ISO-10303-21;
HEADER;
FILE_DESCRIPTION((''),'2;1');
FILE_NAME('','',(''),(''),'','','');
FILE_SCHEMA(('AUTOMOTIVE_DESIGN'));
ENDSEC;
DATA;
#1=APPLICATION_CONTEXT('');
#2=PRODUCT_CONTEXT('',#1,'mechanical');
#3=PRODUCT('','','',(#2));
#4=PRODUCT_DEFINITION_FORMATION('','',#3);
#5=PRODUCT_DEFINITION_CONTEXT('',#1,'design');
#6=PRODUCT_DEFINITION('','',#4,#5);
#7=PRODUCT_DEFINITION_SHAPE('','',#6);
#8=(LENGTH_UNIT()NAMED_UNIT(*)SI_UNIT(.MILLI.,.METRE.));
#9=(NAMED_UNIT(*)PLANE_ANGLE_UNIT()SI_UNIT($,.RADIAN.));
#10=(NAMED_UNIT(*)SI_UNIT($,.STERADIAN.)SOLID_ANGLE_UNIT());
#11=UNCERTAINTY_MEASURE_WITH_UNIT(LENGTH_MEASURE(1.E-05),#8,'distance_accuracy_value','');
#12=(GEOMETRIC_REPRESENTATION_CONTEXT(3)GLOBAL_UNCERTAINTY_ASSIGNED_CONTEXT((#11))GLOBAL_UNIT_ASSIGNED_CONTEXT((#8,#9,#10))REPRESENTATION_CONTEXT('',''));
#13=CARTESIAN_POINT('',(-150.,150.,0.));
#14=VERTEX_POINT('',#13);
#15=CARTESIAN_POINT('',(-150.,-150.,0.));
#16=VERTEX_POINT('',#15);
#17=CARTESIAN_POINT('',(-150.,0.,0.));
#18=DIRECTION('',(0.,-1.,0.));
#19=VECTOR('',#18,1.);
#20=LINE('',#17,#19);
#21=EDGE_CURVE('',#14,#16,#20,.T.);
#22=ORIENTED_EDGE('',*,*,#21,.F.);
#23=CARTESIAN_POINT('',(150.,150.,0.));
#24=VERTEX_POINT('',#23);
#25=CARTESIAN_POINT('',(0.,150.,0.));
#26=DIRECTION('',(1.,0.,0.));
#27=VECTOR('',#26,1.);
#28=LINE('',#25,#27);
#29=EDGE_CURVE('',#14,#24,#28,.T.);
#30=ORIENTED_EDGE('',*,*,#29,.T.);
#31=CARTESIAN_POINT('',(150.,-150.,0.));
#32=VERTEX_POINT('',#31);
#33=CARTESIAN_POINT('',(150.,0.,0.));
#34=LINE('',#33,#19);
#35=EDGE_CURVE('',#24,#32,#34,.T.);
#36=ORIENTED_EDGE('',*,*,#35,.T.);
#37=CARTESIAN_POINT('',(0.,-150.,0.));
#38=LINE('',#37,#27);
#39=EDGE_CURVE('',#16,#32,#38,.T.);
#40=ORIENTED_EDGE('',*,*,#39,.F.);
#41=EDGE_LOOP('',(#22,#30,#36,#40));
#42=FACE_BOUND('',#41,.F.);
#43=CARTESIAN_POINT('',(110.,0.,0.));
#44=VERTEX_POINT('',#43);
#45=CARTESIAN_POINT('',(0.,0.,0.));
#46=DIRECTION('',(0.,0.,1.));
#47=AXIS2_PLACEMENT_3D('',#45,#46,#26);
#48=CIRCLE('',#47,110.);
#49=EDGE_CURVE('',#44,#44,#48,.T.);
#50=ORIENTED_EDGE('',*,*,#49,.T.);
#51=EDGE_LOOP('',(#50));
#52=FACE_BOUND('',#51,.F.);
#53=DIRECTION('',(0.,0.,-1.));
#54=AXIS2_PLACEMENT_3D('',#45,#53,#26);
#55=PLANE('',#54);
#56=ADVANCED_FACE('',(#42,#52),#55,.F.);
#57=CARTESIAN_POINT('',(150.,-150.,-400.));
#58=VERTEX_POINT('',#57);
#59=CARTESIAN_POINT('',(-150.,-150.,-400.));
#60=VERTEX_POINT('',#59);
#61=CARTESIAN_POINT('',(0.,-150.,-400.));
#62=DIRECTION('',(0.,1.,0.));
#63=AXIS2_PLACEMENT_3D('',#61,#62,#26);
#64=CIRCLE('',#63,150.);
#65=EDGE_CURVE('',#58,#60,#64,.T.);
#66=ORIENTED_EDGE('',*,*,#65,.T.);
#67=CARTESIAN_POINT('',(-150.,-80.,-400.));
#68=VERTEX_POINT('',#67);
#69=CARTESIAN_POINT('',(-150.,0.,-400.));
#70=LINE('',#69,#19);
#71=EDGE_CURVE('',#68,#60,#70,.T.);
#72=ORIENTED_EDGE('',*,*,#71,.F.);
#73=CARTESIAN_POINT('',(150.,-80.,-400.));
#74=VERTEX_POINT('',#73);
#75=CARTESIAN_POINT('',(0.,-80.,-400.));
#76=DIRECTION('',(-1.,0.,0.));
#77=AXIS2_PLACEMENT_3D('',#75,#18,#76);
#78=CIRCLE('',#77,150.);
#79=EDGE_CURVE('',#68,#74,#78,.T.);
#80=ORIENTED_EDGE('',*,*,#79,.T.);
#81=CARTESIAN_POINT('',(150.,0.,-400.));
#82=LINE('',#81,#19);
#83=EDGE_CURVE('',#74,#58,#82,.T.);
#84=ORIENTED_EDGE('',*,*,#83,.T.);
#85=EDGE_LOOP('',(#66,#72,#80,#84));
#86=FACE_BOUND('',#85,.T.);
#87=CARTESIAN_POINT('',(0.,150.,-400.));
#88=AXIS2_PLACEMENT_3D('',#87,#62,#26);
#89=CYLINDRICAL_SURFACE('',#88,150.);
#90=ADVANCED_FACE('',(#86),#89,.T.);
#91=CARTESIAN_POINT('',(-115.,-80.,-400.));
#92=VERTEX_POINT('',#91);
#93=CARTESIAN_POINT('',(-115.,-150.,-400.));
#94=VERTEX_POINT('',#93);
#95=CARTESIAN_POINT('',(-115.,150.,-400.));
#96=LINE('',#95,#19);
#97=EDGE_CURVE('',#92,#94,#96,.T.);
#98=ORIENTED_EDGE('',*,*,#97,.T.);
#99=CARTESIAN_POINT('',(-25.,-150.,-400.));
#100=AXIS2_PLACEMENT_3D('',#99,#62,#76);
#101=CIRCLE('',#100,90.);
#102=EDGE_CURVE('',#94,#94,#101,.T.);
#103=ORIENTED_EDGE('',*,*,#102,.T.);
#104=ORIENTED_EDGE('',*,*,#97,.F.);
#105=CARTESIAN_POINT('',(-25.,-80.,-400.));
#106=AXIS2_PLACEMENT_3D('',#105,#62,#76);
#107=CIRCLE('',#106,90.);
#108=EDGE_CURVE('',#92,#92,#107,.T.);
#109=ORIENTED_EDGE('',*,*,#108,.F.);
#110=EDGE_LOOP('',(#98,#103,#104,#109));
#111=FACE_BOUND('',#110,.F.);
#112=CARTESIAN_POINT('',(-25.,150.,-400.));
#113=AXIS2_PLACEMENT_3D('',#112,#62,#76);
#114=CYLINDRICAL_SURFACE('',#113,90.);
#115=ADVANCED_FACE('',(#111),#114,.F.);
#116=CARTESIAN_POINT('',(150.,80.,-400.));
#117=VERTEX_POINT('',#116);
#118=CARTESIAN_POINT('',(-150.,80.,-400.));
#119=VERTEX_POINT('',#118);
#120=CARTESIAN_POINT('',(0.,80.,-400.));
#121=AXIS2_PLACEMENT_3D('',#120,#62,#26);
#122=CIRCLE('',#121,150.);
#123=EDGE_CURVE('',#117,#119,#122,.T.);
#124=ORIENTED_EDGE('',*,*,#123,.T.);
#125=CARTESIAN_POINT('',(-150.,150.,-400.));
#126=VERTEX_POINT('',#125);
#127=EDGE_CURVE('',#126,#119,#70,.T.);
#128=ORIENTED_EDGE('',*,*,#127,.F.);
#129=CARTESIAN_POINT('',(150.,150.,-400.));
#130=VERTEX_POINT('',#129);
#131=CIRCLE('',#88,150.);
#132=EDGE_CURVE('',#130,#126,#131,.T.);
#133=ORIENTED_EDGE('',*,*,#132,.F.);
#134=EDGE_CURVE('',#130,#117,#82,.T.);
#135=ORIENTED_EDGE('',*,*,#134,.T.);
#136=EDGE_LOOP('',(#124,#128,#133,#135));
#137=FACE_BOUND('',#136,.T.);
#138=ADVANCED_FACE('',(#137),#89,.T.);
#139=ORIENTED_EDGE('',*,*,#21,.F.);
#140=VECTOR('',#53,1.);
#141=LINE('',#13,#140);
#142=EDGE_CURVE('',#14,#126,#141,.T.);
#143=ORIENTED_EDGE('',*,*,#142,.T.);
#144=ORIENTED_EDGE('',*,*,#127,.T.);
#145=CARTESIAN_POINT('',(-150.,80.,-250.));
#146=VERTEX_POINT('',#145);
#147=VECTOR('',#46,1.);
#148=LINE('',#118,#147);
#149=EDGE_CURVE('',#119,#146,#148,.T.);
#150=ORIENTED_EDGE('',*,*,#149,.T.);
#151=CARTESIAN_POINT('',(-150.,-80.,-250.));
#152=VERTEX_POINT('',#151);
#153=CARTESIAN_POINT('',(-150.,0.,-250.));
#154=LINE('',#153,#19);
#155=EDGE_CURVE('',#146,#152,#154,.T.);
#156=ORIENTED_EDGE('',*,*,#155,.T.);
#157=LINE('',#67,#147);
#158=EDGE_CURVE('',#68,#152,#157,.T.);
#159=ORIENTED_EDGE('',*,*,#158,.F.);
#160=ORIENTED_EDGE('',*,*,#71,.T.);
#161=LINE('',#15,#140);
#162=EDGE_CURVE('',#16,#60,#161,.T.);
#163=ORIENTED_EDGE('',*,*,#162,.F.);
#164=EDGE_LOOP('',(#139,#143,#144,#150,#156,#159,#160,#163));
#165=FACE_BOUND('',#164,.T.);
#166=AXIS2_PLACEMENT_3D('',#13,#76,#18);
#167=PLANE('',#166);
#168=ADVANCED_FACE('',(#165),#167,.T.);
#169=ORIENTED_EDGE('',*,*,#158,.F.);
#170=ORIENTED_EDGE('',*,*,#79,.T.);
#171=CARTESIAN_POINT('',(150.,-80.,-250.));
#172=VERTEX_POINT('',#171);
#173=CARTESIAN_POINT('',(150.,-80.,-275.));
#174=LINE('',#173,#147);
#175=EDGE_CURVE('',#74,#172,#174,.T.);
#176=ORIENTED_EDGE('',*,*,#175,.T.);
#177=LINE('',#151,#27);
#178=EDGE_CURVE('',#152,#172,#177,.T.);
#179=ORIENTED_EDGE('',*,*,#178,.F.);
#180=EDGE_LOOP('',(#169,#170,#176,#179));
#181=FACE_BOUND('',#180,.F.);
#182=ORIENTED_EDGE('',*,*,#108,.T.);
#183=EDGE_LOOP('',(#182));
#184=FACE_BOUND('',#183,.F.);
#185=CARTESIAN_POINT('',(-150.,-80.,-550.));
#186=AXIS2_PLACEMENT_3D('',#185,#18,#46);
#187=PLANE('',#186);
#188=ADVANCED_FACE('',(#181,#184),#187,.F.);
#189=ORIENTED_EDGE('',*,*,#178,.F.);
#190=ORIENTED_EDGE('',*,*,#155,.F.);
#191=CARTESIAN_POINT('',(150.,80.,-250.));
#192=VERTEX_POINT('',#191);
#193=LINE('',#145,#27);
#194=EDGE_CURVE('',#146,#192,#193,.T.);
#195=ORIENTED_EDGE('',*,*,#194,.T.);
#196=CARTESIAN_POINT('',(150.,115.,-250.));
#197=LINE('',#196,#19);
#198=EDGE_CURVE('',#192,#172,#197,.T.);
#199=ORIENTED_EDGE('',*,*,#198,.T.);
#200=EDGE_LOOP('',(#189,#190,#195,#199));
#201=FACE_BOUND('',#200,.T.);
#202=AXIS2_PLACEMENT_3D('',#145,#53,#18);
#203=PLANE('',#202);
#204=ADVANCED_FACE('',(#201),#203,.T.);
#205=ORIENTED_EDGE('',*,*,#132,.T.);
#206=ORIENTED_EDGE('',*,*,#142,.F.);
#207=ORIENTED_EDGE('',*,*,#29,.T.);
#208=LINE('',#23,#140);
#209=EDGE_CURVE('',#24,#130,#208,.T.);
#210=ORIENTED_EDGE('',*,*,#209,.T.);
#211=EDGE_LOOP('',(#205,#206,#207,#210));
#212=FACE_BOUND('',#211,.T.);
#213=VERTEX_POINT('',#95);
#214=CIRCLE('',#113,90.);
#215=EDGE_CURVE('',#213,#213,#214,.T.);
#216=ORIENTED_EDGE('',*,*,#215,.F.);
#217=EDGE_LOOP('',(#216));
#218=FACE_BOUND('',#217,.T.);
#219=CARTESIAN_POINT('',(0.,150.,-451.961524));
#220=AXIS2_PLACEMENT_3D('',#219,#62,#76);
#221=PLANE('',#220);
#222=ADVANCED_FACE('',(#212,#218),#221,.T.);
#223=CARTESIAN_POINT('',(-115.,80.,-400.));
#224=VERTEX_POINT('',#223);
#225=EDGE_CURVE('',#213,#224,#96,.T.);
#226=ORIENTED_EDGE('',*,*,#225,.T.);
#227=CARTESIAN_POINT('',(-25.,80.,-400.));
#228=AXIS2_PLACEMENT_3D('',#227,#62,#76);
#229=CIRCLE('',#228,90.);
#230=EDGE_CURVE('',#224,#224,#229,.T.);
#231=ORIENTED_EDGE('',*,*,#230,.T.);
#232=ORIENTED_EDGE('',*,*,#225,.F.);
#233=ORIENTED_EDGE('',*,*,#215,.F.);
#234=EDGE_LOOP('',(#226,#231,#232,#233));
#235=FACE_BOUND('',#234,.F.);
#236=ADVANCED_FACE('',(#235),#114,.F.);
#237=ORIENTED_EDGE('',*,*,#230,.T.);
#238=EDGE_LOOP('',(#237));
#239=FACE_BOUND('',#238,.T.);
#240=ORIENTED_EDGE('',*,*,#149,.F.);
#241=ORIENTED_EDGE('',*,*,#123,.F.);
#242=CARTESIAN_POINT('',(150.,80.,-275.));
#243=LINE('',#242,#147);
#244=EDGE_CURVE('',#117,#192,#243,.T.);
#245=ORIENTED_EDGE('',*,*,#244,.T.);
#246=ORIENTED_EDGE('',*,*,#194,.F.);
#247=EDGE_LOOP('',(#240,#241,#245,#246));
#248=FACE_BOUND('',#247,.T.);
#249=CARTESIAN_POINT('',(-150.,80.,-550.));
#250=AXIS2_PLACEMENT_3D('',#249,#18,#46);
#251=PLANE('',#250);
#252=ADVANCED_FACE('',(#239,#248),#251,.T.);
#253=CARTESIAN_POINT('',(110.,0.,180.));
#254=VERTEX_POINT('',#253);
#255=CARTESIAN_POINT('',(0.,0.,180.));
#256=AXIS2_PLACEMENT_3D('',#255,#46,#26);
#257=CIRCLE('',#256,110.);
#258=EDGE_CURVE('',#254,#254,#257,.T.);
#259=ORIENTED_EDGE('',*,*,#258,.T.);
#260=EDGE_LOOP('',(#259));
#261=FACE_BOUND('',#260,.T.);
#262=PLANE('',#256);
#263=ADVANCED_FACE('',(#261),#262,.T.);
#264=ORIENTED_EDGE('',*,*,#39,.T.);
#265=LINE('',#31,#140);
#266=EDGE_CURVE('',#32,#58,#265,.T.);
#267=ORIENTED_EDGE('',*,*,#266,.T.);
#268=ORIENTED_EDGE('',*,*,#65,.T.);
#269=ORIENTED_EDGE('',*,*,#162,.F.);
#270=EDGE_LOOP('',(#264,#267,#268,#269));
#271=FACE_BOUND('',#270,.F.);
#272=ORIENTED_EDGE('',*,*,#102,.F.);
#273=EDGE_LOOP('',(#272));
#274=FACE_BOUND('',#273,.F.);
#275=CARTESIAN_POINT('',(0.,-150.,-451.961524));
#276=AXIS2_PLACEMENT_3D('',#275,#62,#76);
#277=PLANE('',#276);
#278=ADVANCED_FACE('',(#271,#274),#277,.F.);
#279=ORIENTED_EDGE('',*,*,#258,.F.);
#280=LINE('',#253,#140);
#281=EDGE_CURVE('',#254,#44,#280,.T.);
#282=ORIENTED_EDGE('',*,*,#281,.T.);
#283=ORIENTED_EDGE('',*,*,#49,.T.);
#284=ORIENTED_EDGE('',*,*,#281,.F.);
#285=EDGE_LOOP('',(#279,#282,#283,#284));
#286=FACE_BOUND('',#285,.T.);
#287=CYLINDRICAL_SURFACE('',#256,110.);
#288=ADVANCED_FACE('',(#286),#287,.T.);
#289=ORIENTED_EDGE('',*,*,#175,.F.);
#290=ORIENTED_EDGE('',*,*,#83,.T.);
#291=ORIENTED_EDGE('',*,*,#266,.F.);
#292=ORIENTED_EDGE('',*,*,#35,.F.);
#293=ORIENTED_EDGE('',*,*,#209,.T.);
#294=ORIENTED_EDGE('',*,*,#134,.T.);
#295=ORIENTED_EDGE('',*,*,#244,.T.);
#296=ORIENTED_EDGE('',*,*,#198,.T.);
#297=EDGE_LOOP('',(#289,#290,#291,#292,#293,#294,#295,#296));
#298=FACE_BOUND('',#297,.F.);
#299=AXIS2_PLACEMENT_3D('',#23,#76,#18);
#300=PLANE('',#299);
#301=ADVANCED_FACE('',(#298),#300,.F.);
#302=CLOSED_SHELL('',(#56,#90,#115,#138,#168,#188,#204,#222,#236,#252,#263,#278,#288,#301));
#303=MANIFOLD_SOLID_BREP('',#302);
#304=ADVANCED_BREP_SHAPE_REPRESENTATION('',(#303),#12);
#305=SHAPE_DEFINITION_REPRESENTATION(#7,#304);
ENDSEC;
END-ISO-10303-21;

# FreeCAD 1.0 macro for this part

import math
import FreeCAD as App
import Part
import Sketcher

V = App.Vector

doc = App.newDocument("Part")
body = doc.addObject("PartDesign::Body", "Body")

# Sketch on XY plane
sketch1 = body.newObject("Sketcher::SketchObject", "Sketch")
sketch1.AttachmentSupport = (doc.getObject("XY_Plane"), [""])
sketch1.MapMode = "FlatFace"
sketch1.addGeometry(Part.Circle(V(0, 0, 0), V(0, 0, 1), 90), False)
sketch1.addConstraint([
    Sketcher.Constraint("Coincident", 0, 3, -1, 1),
    Sketcher.Constraint("Diameter", 0, 180.0),
])
pad1 = body.newObject("PartDesign::Pad", "Pad")
pad1.Profile = sketch1
pad1.Length = 180

# Sketch on XY plane
sketch2 = body.newObject("Sketcher::SketchObject", "Sketch001")
sketch2.AttachmentSupport = (doc.getObject("XY_Plane"), [""])
sketch2.MapMode = "FlatFace"
sketch2.addGeometry([
    Part.LineSegment(V(-150, -150, 0), V(-150, 150, 0)),
    Part.LineSegment(V(-150, 150, 0), V(150, 150, 0)),
    Part.LineSegment(V(150, 150, 0), V(150, -150, 0)),
    Part.LineSegment(V(150, -150, 0), V(-150, -150, 0)),
], False)
sketch2.addConstraint([
    Sketcher.Constraint("Coincident", 0, 2, 1, 1),
    Sketcher.Constraint("Coincident", 1, 2, 2, 1),
    Sketcher.Constraint("Coincident", 2, 2, 3, 1),
    Sketcher.Constraint("Coincident", 3, 2, 0, 1),
    Sketcher.Constraint("Vertical", 0),
    Sketcher.Constraint("Horizontal", 1),
    Sketcher.Constraint("Vertical", 2),
    Sketcher.Constraint("Horizontal", 3),
    Sketcher.Constraint("Symmetric", 0, 2, 2, 2, -1, 1),
    Sketcher.Constraint("Equal", 3, 0),
    Sketcher.Constraint("DistanceX", 1, 1, 1, 2, 300.0),
])
pad2 = body.newObject("PartDesign::Pad", "Pad001")
pad2.Profile = sketch2
pad2.Length = 400
pad2.Reversed = True

# Sketch on XZ plane
sketch3 = body.newObject("Sketcher::SketchObject", "Sketch002")
sketch3.AttachmentSupport = (doc.getObject("XZ_Plane"), [""])
sketch3.MapMode = "FlatFace"
sketch3.AttachmentOffset = App.Placement(V(0, 0, -150), App.Rotation())
sketch3.addGeometry([
    Part.LineSegment(V(-150, -400, 0), V(150, -400, 0)),
    Part.ArcOfCircle(Part.Circle(V(0, -400, 0), V(0, 0, 1), 150), math.radians(180), math.radians(360)),
], False)
sketch3.addConstraint([
    Sketcher.Constraint("Coincident", 0, 1, 1, 1),
    Sketcher.Constraint("Coincident", 1, 2, 0, 2),
    Sketcher.Constraint("Horizontal", 0),
    Sketcher.Constraint("PointOnObject", 1, 3, -2),
    Sketcher.Constraint("Horizontal", 1, 3, 0, 1),
    Sketcher.Constraint("Radius", 1, 150.0),
    Sketcher.Constraint("DistanceY", 1, 3, -1, 1, 400.0),
])
pad3 = body.newObject("PartDesign::Pad", "Pad002")
pad3.Profile = sketch3
pad3.Length = 300

# Sketch on XZ plane
sketch4 = body.newObject("Sketcher::SketchObject", "Sketch003")
sketch4.AttachmentSupport = (doc.getObject("XZ_Plane"), [""])
sketch4.MapMode = "FlatFace"
sketch4.AttachmentOffset = App.Placement(V(0, 0, -150), App.Rotation())
sketch4.addGeometry(Part.Circle(V(-25, -400, 0), V(0, 0, 1), 90), False)
sketch4.addConstraint([
    Sketcher.Constraint("Diameter", 0, 180.0),
    Sketcher.Constraint("DistanceX", 0, 3, -1, 1, 25.0),
    Sketcher.Constraint("DistanceY", 0, 3, -1, 1, 400.0),
])
pocket1 = body.newObject("PartDesign::Pocket", "Pocket")
pocket1.Profile = sketch4
pocket1.Length = 300
pocket1.Reversed = True

# Sketch on YZ plane
sketch5 = body.newObject("Sketcher::SketchObject", "Sketch004")
sketch5.AttachmentSupport = (doc.getObject("YZ_Plane"), [""])
sketch5.MapMode = "FlatFace"
sketch5.AttachmentOffset = App.Placement(V(0, 0, -150), App.Rotation())
sketch5.addGeometry([
    Part.LineSegment(V(80, -250, 0), V(80, -550, 0)),
    Part.LineSegment(V(80, -550, 0), V(-80, -550, 0)),
    Part.LineSegment(V(-80, -550, 0), V(-80, -250, 0)),
    Part.LineSegment(V(-80, -250, 0), V(80, -250, 0)),
], False)
sketch5.addConstraint([
    Sketcher.Constraint("Coincident", 0, 2, 1, 1),
    Sketcher.Constraint("Coincident", 1, 2, 2, 1),
    Sketcher.Constraint("Coincident", 2, 2, 3, 1),
    Sketcher.Constraint("Coincident", 3, 2, 0, 1),
    Sketcher.Constraint("Vertical", 0),
    Sketcher.Constraint("Horizontal", 1),
    Sketcher.Constraint("Vertical", 2),
    Sketcher.Constraint("Horizontal", 3),
    Sketcher.Constraint("DistanceX", 1, 2, 1, 1, 160.0),
    Sketcher.Constraint("DistanceY", 0, 2, 0, 1, 300.0),
    Sketcher.Constraint("DistanceX", -1, 1, 0, 2, 80.0),
    Sketcher.Constraint("DistanceY", 0, 2, -1, 1, 550.0),
])
pocket2 = body.newObject("PartDesign::Pocket", "Pocket001")
pocket2.Profile = sketch5
pocket2.Length = 303
pocket2.Reversed = True

# Sketch on XY plane
sketch6 = body.newObject("Sketcher::SketchObject", "Sketch005")
sketch6.AttachmentSupport = (doc.getObject("XY_Plane"), [""])
sketch6.MapMode = "FlatFace"
sketch6.AttachmentOffset = App.Placement(V(0, 0, 180), App.Rotation())
sketch6.addGeometry(Part.Circle(V(0, 0, 0), V(0, 0, 1), 110), False)
sketch6.addConstraint([
    Sketcher.Constraint("Coincident", 0, 3, -1, 1),
    Sketcher.Constraint("Diameter", 0, 220.0),
])
pad4 = body.newObject("PartDesign::Pad", "Pad003")
pad4.Profile = sketch6
pad4.Length = 211
pad4.Reversed = True

doc.recompute()
